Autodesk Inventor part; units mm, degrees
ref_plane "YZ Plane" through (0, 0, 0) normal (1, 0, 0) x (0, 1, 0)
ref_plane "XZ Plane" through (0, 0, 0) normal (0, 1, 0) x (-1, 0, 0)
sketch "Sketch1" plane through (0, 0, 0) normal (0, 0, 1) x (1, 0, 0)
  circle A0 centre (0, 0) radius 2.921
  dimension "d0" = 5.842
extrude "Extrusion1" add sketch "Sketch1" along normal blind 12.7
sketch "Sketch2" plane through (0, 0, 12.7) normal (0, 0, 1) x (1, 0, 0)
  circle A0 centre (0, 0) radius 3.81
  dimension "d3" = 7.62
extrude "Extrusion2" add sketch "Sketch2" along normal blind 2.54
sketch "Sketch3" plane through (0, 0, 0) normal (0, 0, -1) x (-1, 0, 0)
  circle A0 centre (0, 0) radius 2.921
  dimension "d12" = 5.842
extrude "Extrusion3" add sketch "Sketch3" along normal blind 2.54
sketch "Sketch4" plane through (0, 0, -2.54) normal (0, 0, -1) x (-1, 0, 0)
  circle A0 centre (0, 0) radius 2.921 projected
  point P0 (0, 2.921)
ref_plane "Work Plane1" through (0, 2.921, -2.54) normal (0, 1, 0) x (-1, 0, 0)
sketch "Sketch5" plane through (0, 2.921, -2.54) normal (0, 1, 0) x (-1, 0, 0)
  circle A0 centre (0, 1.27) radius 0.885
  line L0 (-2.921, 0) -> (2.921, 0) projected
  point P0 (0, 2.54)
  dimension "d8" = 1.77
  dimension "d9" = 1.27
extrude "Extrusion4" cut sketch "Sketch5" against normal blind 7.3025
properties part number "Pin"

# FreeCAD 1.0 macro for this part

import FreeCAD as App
import Part
import Sketcher
from FreeCAD import Vector
Q = App.Units.Quantity

doc = App.newDocument("Part")
body = doc.addObject("PartDesign::Body", "Body")

sketch1 = body.newObject("Sketcher::SketchObject", "Sketch")
sketch1.AttachmentSupport = (doc.getObject("XY_Plane"), [""])
sketch1.MapMode = "FlatFace"
sketch1.addGeometry(Part.Circle(Vector(0, 0, 0), Vector(0, 0, 1), 2.9), False)
sketch1.addConstraint(Sketcher.Constraint("Coincident", 0, 3, -1, 1))
sketch1.addConstraint(Sketcher.Constraint("Diameter", 0, Q("0.23 in")))
pad1 = body.newObject("PartDesign::Pad", "Pad")
pad1.Profile = sketch1
pad1.Length = Q("0.5 in")

sketch2 = body.newObject("Sketcher::SketchObject", "Sketch001")
sketch2.AttachmentSupport = (doc.getObject("XY_Plane"), [""])
sketch2.MapMode = "FlatFace"
sketch2.AttachmentOffset = App.Placement(Vector(0, 0, 0.5 * 25.4), App.Rotation())
sketch2.addGeometry(Part.Circle(Vector(0, 0, 0), Vector(0, 0, 1), 3.8), False)
sketch2.addConstraint(Sketcher.Constraint("Coincident", 0, 3, -1, 1))
sketch2.addConstraint(Sketcher.Constraint("Diameter", 0, Q("0.3 in")))
pad2 = body.newObject("PartDesign::Pad", "Pad001")
pad2.Profile = sketch2
pad2.Length = Q("0.1 in")

sketch3 = body.newObject("Sketcher::SketchObject", "Sketch002")
sketch3.AttachmentSupport = (doc.getObject("XY_Plane"), [""])
sketch3.MapMode = "FlatFace"
sketch3.addGeometry(Part.Circle(Vector(0, 0, 0), Vector(0, 0, 1), 2.9), False)
sketch3.addConstraint(Sketcher.Constraint("Coincident", 0, 3, -1, 1))
sketch3.addConstraint(Sketcher.Constraint("Diameter", 0, Q("0.23 in")))
pad3 = body.newObject("PartDesign::Pad", "Pad002")
pad3.Profile = sketch3
pad3.Length = Q("0.1 in")
pad3.Reversed = True

sketch4 = body.newObject("Sketcher::SketchObject", "Sketch003")
sketch4.AttachmentSupport = (doc.getObject("XZ_Plane"), [""])
sketch4.MapMode = "FlatFace"
sketch4.AttachmentOffset = App.Placement(Vector(0, 0, -0.115 * 25.4), App.Rotation())
sketch4.addGeometry(Part.Circle(Vector(0, -1.3, 0), Vector(0, 0, 1), 0.9), False)
sketch4.addConstraint(Sketcher.Constraint("PointOnObject", 0, 3, -2))
sketch4.addConstraint(Sketcher.Constraint("Diameter", 0, 1.77))
sketch4.addConstraint(Sketcher.Constraint("DistanceY", 0, 3, -1, 1, Q("0.05 in")))
pocket1 = body.newObject("PartDesign::Pocket", "Pocket")
pocket1.Profile = sketch4
pocket1.Length = Q("0.2875 in")
pocket1.Reversed = True

doc.recompute()
